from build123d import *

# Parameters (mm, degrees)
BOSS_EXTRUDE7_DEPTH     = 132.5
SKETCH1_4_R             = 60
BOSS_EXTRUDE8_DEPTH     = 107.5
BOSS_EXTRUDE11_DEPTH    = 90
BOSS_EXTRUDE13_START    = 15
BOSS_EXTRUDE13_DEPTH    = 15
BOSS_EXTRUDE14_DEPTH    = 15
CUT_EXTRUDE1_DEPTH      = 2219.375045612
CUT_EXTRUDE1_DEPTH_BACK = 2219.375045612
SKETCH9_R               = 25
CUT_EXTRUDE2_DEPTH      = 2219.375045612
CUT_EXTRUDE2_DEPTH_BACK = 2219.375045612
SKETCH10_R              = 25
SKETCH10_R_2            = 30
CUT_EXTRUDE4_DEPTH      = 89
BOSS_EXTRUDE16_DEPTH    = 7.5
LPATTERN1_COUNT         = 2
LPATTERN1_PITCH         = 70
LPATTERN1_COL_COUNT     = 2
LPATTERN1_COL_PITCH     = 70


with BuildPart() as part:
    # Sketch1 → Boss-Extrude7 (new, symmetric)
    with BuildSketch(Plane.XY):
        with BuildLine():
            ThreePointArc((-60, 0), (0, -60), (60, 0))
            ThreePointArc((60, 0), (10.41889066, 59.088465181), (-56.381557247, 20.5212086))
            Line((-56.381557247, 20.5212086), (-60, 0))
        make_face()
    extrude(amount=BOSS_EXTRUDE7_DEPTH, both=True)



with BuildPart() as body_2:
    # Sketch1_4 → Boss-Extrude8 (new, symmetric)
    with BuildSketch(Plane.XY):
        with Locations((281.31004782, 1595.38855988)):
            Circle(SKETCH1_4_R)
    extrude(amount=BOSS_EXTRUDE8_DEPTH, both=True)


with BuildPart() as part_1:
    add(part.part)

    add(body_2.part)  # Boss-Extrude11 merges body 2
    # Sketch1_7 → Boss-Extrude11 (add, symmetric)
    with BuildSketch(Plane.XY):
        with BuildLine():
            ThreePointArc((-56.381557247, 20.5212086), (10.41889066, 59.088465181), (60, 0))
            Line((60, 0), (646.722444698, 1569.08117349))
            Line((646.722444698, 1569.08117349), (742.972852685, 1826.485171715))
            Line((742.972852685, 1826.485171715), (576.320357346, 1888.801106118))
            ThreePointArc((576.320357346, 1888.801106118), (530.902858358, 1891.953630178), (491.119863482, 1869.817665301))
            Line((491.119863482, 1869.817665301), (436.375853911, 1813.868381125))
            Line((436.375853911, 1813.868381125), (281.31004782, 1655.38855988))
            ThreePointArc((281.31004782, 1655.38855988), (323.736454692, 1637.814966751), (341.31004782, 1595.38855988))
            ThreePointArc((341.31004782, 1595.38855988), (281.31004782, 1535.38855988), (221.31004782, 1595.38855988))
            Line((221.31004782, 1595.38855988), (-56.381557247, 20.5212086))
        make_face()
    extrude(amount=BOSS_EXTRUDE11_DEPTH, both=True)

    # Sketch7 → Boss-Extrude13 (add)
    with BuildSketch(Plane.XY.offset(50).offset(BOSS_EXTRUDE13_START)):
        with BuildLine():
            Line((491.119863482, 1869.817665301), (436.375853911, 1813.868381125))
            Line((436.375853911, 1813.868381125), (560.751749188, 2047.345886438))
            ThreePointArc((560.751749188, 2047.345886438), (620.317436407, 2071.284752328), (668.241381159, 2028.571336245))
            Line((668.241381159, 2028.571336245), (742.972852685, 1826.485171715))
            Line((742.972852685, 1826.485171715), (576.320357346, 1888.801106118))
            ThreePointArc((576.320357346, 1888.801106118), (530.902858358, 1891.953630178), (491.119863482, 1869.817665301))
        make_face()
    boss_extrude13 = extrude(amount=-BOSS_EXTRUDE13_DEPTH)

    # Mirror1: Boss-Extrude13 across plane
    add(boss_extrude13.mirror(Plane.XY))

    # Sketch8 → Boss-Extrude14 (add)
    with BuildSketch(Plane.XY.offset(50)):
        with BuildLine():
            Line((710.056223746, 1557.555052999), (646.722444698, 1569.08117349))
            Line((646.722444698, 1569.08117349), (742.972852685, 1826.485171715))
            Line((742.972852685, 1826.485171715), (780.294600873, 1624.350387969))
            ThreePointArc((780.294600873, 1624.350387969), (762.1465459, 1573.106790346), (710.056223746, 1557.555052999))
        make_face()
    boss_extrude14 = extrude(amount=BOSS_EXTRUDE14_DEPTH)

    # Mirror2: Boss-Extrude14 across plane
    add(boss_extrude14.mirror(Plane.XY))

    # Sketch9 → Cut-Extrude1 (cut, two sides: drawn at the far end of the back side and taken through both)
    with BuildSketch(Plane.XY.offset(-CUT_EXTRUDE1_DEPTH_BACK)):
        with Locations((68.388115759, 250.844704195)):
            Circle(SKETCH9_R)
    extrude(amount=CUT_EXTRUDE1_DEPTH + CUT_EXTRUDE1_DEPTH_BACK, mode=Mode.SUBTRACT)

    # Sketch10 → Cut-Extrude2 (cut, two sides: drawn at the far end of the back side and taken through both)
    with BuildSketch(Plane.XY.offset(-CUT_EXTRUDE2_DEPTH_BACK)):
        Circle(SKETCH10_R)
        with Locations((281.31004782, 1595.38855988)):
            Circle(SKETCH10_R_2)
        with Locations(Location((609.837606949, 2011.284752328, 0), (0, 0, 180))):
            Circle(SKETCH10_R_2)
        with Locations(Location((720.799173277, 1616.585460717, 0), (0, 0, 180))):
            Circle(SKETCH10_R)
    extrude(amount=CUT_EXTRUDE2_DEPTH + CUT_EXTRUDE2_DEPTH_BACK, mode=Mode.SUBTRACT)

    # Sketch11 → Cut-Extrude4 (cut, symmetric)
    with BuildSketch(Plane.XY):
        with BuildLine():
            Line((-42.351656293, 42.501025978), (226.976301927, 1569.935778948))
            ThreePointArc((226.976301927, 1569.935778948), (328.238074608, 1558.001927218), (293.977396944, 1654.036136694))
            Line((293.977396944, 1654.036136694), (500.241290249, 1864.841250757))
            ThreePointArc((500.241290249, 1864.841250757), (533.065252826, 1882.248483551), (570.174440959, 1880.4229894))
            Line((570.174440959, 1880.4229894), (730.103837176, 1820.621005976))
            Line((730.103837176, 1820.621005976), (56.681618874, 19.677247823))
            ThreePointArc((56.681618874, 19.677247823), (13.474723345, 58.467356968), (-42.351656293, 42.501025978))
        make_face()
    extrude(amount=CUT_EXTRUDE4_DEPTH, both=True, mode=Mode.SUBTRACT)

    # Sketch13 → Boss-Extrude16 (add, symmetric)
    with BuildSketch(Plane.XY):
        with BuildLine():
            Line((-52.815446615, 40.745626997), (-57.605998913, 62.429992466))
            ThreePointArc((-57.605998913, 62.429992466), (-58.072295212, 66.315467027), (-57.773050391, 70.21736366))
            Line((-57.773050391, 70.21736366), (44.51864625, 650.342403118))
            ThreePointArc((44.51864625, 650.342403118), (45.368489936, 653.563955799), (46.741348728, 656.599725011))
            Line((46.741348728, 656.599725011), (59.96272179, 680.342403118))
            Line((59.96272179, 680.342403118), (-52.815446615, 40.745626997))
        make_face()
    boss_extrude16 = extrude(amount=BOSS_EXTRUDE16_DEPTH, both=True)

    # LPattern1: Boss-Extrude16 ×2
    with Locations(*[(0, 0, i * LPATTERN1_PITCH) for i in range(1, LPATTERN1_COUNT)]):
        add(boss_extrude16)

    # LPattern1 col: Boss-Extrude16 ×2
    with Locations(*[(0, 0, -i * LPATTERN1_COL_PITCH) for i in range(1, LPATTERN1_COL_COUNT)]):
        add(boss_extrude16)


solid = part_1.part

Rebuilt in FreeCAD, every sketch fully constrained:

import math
import FreeCAD as App
import Part
import Sketcher
from FreeCAD import Vector
Q = App.Units.Quantity

doc = App.newDocument("Part")
body = doc.addObject("PartDesign::Body", "Body")

# Sketch on XY plane
sketch1 = body.newObject("Sketcher::SketchObject", "Sketch")
sketch1.AttachmentSupport = (doc.getObject("XY_Plane"), [""])
sketch1.MapMode = "FlatFace"
sketch1.addGeometry(Part.ArcOfCircle(Part.Circle(Vector(0, 0, 0), Vector(0, 0, 1), 60), math.radians(180), math.radians(360)), False)
sketch1.addGeometry(Part.ArcOfCircle(Part.Circle(Vector(0, 0, 0), Vector(0, 0, 1), 60), math.radians(0), math.radians(160)), False)
sketch1.addGeometry(Part.LineSegment(Vector(-56, 21, 0), Vector(-60, 0, 0)), False)
sketch1.addConstraint(Sketcher.Constraint("Tangent", 0, 2, 1, 1))
sketch1.addConstraint(Sketcher.Constraint("Coincident", 1, 2, 2, 1))
sketch1.addConstraint(Sketcher.Constraint("Coincident", 2, 2, 0, 1))
sketch1.addConstraint(Sketcher.Constraint("Coincident", 0, 3, -1, 1))
sketch1.addConstraint(Sketcher.Constraint("Equal", 0, 1))
sketch1.addConstraint(Sketcher.Constraint("PointOnObject", 0, 2, -1))
sketch1.addConstraint(Sketcher.Constraint("PointOnObject", 2, 2, -1))
sketch1.addConstraint(Sketcher.Constraint("Radius", 0, Q("60 mm")))
sketch1.addConstraint(Sketcher.Constraint("Angle", 2, Q("-100 deg")))
pad1 = body.newObject("PartDesign::Pad", "Pad")
pad1.Profile = sketch1
pad1.Length = 265
pad1.Midplane = True
body2 = doc.addObject("PartDesign::Body", "Body001")

# Sketch on XY plane
sketch2 = body2.newObject("Sketcher::SketchObject", "Sketch001")
sketch2.AttachmentSupport = (doc.getObject("XY_Plane001"), [""])
sketch2.MapMode = "FlatFace"
sketch2.addGeometry(Part.Circle(Vector(281, 1595, 0), Vector(0, 0, 1), 60), False)
sketch2.addConstraint(Sketcher.Constraint("Diameter", 0, Q("120 mm")))
sketch2.addConstraint(Sketcher.Constraint("DistanceY", -1, 1, 0, 3, Q("1595.38856 mm")))
sketch2.addConstraint(Sketcher.Constraint("DistanceX", -1, 1, 0, 3, Q("281.310048 mm")))
pad2 = body2.newObject("PartDesign::Pad", "Pad001")
pad2.Profile = sketch2
pad2.Length = 215
pad2.Midplane = True
body.AllowCompound = True
doc.recompute()

boolean = body.newObject("PartDesign::Boolean", "Boolean")
boolean.Type = "Fuse"
boolean.addObjects([body2])

# Sketch on XY plane
sketch3 = body.newObject("Sketcher::SketchObject", "Sketch002")
sketch3.AttachmentSupport = (doc.getObject("XY_Plane"), [""])
sketch3.MapMode = "FlatFace"
sketch3.addGeometry(Part.ArcOfCircle(Part.Circle(Vector(0, 0, 0), Vector(0, 0, 1), 60), math.radians(0), math.radians(160)), False)
sketch3.addGeometry(Part.LineSegment(Vector(60, 0, 0), Vector(647, 1569, 0)), False)
sketch3.addGeometry(Part.LineSegment(Vector(647, 1569, 0), Vector(743, 1826, 0)), False)
sketch3.addGeometry(Part.LineSegment(Vector(743, 1826, 0), Vector(576, 1889, 0)), False)
sketch3.addGeometry(Part.ArcOfCircle(Part.Circle(Vector(548, 1814, 0), Vector(0, 0, 1), 80), math.radians(69), math.radians(136)), False)
sketch3.addGeometry(Part.LineSegment(Vector(491, 1870, 0), Vector(436, 1814, 0)), False)
sketch3.addGeometry(Part.LineSegment(Vector(436, 1814, 0), Vector(281, 1655, 0)), False)
sketch3.addGeometry(Part.ArcOfCircle(Part.Circle(Vector(281, 1595, 0), Vector(0, 0, 1), 60), math.radians(0), math.radians(90)), False)
sketch3.addGeometry(Part.ArcOfCircle(Part.Circle(Vector(281, 1595, 0), Vector(0, 0, 1), 60), math.radians(180), math.radians(360)), False)
sketch3.addGeometry(Part.LineSegment(Vector(221, 1595, 0), Vector(-56, 21, 0)), False)
sketch3.addConstraint(Sketcher.Constraint("Coincident", 0, 1, 1, 1))
sketch3.addConstraint(Sketcher.Constraint("Coincident", 1, 2, 2, 1))
sketch3.addConstraint(Sketcher.Constraint("Coincident", 2, 2, 3, 1))
sketch3.addConstraint(Sketcher.Constraint("Tangent", 3, 2, 4, 1))
sketch3.addConstraint(Sketcher.Constraint("Tangent", 4, 2, 5, 1))
sketch3.addConstraint(Sketcher.Constraint("Coincident", 5, 2, 6, 1))
sketch3.addConstraint(Sketcher.Constraint("Coincident", 6, 2, 7, 2))
sketch3.addConstraint(Sketcher.Constraint("Tangent", 7, 1, 8, 2))
sketch3.addConstraint(Sketcher.Constraint("Coincident", 8, 1, 9, 1))
sketch3.addConstraint(Sketcher.Constraint("Coincident", 9, 2, 0, 2))
sketch3.addConstraint(Sketcher.Constraint("Coincident", 0, 3, -1, 1))
sketch3.addConstraint(Sketcher.Constraint("Equal", 0, 7))
sketch3.addConstraint(Sketcher.Constraint("Equal", 7, 8))
sketch3.addConstraint(Sketcher.Constraint("PointOnObject", 0, 1, -1))
sketch3.addConstraint(Sketcher.Constraint("Parallel", 1, 2))
sketch3.addConstraint(Sketcher.Constraint("Perpendicular", 2, 3))
sketch3.addConstraint(Sketcher.Constraint("Parallel", 5, 6))
sketch3.addConstraint(Sketcher.Constraint("Horizontal", 4, 3, 5, 2))
sketch3.addConstraint(Sketcher.Constraint("Horizontal", 8, 3, 7, 1))
sketch3.addConstraint(Sketcher.Constraint("Horizontal", 7, 1, 8, 1))
sketch3.addConstraint(Sketcher.Constraint("Vertical", 8, 3, 6, 2))
sketch3.addConstraint(Sketcher.Constraint("Radius", 0, Q("60 mm")))
sketch3.addConstraint(Sketcher.Constraint("Radius", 4, Q("80 mm")))
sketch3.addConstraint(Sketcher.Constraint("Angle", 9, Q("-100 deg")))
sketch3.addConstraint(Sketcher.Constraint("DistanceY", 1, 2, 2, 2, Q("257.403998 mm")))
sketch3.addConstraint(Sketcher.Constraint("DistanceX", 4, 3, 3, 2, Q("28.019399 mm")))
sketch3.addConstraint(Sketcher.Constraint("Distance", 1, Q("1675.18923 mm")))
sketch3.addConstraint(Sketcher.Constraint("Distance", 5, Q("78.276618 mm")))
sketch3.addConstraint(Sketcher.Constraint("Distance", 6, Q("221.723382 mm")))
sketch3.addConstraint(Sketcher.Constraint("Distance", 9, Q("1599.162219 mm")))
pad3 = body.newObject("PartDesign::Pad", "Pad002")
pad3.Profile = sketch3
pad3.Length = 180
pad3.Midplane = True

# Sketch on XY plane
sketch4 = body.newObject("Sketcher::SketchObject", "Sketch003")
sketch4.AttachmentSupport = (doc.getObject("XY_Plane"), [""])
sketch4.MapMode = "FlatFace"
sketch4.AttachmentOffset = App.Placement(Vector(0, 0, 65), App.Rotation())
sketch4.addGeometry(Part.LineSegment(Vector(436, 1814, 0), Vector(491, 1870, 0)), False)
sketch4.addGeometry(Part.ArcOfCircle(Part.Circle(Vector(548, 1814, 0), Vector(0, 0, 1), 80), math.radians(69), math.radians(136)), False)
sketch4.addGeometry(Part.LineSegment(Vector(576, 1889, 0), Vector(743, 1826, 0)), False)
sketch4.addGeometry(Part.LineSegment(Vector(743, 1826, 0), Vector(668, 2029, 0)), False)
sketch4.addGeometry(Part.ArcOfCircle(Part.Circle(Vector(610, 2011, 0), Vector(0, 0, 1), 61), math.radians(16), math.radians(144)), False)
sketch4.addGeometry(Part.LineSegment(Vector(561, 2047, 0), Vector(436, 1814, 0)), False)
sketch4.addConstraint(Sketcher.Constraint("Tangent", 0, 2, 1, 2))
sketch4.addConstraint(Sketcher.Constraint("Tangent", 1, 1, 2, 1))
sketch4.addConstraint(Sketcher.Constraint("Coincident", 2, 2, 3, 1))
sketch4.addConstraint(Sketcher.Constraint("Coincident", 3, 2, 4, 1))
sketch4.addConstraint(Sketcher.Constraint("Coincident", 4, 2, 5, 1))
sketch4.addConstraint(Sketcher.Constraint("Coincident", 5, 2, 0, 1))
sketch4.addConstraint(Sketcher.Constraint("Horizontal", 1, 3, 5, 2))
sketch4.addConstraint(Sketcher.Constraint("Radius", 1, Q("80 mm")))
sketch4.addConstraint(Sketcher.Constraint("Radius", 4, Q("60.908348 mm")))
sketch4.addConstraint(Sketcher.Constraint("DistanceX", 1, 3, 1, 1, Q("28.019399 mm")))
sketch4.addConstraint(Sketcher.Constraint("Distance", 0, Q("78.276618 mm")))
sketch4.addConstraint(Sketcher.Constraint("Distance", 3, Q("215.46139 mm")))
sketch4.addConstraint(Sketcher.Constraint("DistanceX", -1, 1, 1, 3, Q("548.300958 mm")))
sketch4.addConstraint(Sketcher.Constraint("DistanceY", -1, 1, 1, 3, Q("1813.868381 mm")))
sketch4.addConstraint(Sketcher.Constraint("DistanceY", -1, 1, 2, 2, Q("1826.485172 mm")))
sketch4.addConstraint(Sketcher.Constraint("DistanceX", -1, 1, 3, 2, Q("668.241381 mm")))
sketch4.addConstraint(Sketcher.Constraint("DistanceX", -1, 1, 4, 2, Q("560.751749 mm")))
sketch4.addConstraint(Sketcher.Constraint("DistanceX", 1, 3, 4, 3, Q("61.536649 mm")))
pad4 = body.newObject("PartDesign::Pad", "Pad003")
pad4.Profile = sketch4
pad4.Length = 15
pad4.Reversed = True
doc.recompute()

mirrored = body.newObject("PartDesign::Mirrored", "Mirrored")
mirrored.Originals = [pad4]
mirrored.MirrorPlane = (doc.getObject("XY_Plane"), [""])
body.Tip = mirrored

# Sketch on XY plane
sketch5 = body.newObject("Sketcher::SketchObject", "Sketch004")
sketch5.AttachmentSupport = (doc.getObject("XY_Plane"), [""])
sketch5.MapMode = "FlatFace"
sketch5.AttachmentOffset = App.Placement(Vector(0, 0, 50), App.Rotation())
sketch5.addGeometry(Part.LineSegment(Vector(647, 1569, 0), Vector(710, 1558, 0)), False)
sketch5.addGeometry(Part.ArcOfCircle(Part.Circle(Vector(721, 1617, 0), Vector(0, 0, 1), 60), math.radians(-100), math.radians(7)), False)
sketch5.addGeometry(Part.LineSegment(Vector(780, 1624, 0), Vector(743, 1826, 0)), False)
sketch5.addGeometry(Part.LineSegment(Vector(743, 1826, 0), Vector(647, 1569, 0)), False)
sketch5.addConstraint(Sketcher.Constraint("Tangent", 0, 2, 1, 1))
sketch5.addConstraint(Sketcher.Constraint("Coincident", 1, 2, 2, 1))
sketch5.addConstraint(Sketcher.Constraint("Coincident", 2, 2, 3, 1))
sketch5.addConstraint(Sketcher.Constraint("Coincident", 3, 2, 0, 1))
sketch5.addConstraint(Sketcher.Constraint("Radius", 1, Q("60 mm")))
sketch5.addConstraint(Sketcher.Constraint("DistanceY", 3, 2, 2, 2, Q("257.403998 mm")))
sketch5.addConstraint(Sketcher.Constraint("DistanceX", -1, 1, 1, 2, Q("780.294601 mm")))
sketch5.addConstraint(Sketcher.Constraint("Distance", 3, Q("274.81077 mm")))
sketch5.addConstraint(Sketcher.Constraint("DistanceY", -1, 1, 1, 3, Q("1616.585461 mm")))
sketch5.addConstraint(Sketcher.Constraint("DistanceY", -1, 1, 2, 2, Q("1826.485172 mm")))
sketch5.addConstraint(Sketcher.Constraint("DistanceX", 0, 2, 1, 3, Q("10.74295 mm")))
sketch5.addConstraint(Sketcher.Constraint("DistanceX", 2, 2, 1, 2, Q("37.321748 mm")))
pad5 = body.newObject("PartDesign::Pad", "Pad004")
pad5.Profile = sketch5
pad5.Length = 15
doc.recompute()

mirrored2 = body.newObject("PartDesign::Mirrored", "Mirrored001")
mirrored2.Originals = [pad5]
mirrored2.MirrorPlane = (doc.getObject("XY_Plane"), [""])
body.Tip = mirrored2

# Sketch on XY plane
sketch6 = body.newObject("Sketcher::SketchObject", "Sketch005")
sketch6.AttachmentSupport = (doc.getObject("XY_Plane"), [""])
sketch6.MapMode = "FlatFace"
sketch6.addGeometry(Part.Circle(Vector(68, 251, 0), Vector(0, 0, 1), 25), False)
sketch6.addConstraint(Sketcher.Constraint("Diameter", 0, Q("50 mm")))
sketch6.addConstraint(Sketcher.Constraint("DistanceX", -1, 1, 0, 3, Q("68.388116 mm")))
sketch6.addConstraint(Sketcher.Constraint("DistanceY", -1, 1, 0, 3, Q("250.844704 mm")))
pocket1 = body.newObject("PartDesign::Pocket", "Pocket")
pocket1.Profile = sketch6
pocket1.Type = "ThroughAll"
pocket1.Midplane = True

# Sketch on XY plane
sketch7 = body.newObject("Sketcher::SketchObject", "Sketch006")
sketch7.AttachmentSupport = (doc.getObject("XY_Plane"), [""])
sketch7.MapMode = "FlatFace"
sketch7.addGeometry(Part.Circle(Vector(0, 0, 0), Vector(0, 0, 1), 25), False)
sketch7.addGeometry(Part.Circle(Vector(281, 1595, 0), Vector(0, 0, 1), 30), False)
sketch7.addGeometry(Part.Circle(Vector(610, 2011, 0), Vector(0, 0, 1), 30), False)
sketch7.addGeometry(Part.Circle(Vector(721, 1617, 0), Vector(0, 0, 1), 25), False)
sketch7.addConstraint(Sketcher.Constraint("Coincident", 0, 3, -1, 1))
sketch7.addConstraint(Sketcher.Constraint("Equal", 1, 2))
sketch7.addConstraint(Sketcher.Constraint("Equal", 0, 3))
sketch7.addConstraint(Sketcher.Constraint("Diameter", 0, Q("50 mm")))
sketch7.addConstraint(Sketcher.Constraint("Diameter", 1, Q("60 mm")))
sketch7.addConstraint(Sketcher.Constraint("DistanceY", 1, 3, 3, 3, Q("21.196901 mm")))
sketch7.addConstraint(Sketcher.Constraint("DistanceY", -1, 1, 1, 3, Q("1595.38856 mm")))
sketch7.addConstraint(Sketcher.Constraint("DistanceX", 1, 3, 2, 3, Q("328.527559 mm")))
sketch7.addConstraint(Sketcher.Constraint("DistanceY", 3, 3, 2, 3, Q("394.699292 mm")))
sketch7.addConstraint(Sketcher.Constraint("DistanceX", -1, 1, 1, 3, Q("281.310048 mm")))
sketch7.addConstraint(Sketcher.Constraint("DistanceX", -1, 1, 3, 3, Q("720.799173 mm")))
pocket2 = body.newObject("PartDesign::Pocket", "Pocket001")
pocket2.Profile = sketch7
pocket2.Type = "ThroughAll"
pocket2.Midplane = True

# Sketch on XY plane
sketch8 = body.newObject("Sketcher::SketchObject", "Sketch007")
sketch8.AttachmentSupport = (doc.getObject("XY_Plane"), [""])
sketch8.MapMode = "FlatFace"
sketch8.addGeometry(Part.LineSegment(Vector(227, 1570, 0), Vector(-42, 43, 0)), False)
sketch8.addGeometry(Part.ArcOfCircle(Part.Circle(Vector(0, 0, 0), Vector(0, 0, 1), 60), math.radians(19), math.radians(135)), False)
sketch8.addGeometry(Part.LineSegment(Vector(57, 20, 0), Vector(730, 1821, 0)), False)
sketch8.addGeometry(Part.LineSegment(Vector(730, 1821, 0), Vector(570, 1880, 0)), False)
sketch8.addGeometry(Part.ArcOfCircle(Part.Circle(Vector(548, 1814, 0), Vector(0, 0, 1), 70), math.radians(72), math.radians(133)), False)
sketch8.addGeometry(Part.LineSegment(Vector(500, 1865, 0), Vector(294, 1654, 0)), False)
sketch8.addGeometry(Part.ArcOfCircle(Part.Circle(Vector(281, 1595, 0), Vector(0, 0, 1), 60), math.radians(-155), math.radians(78)), False)
sketch8.addConstraint(Sketcher.Constraint("Coincident", 0, 2, 1, 2))
sketch8.addConstraint(Sketcher.Constraint("Coincident", 1, 1, 2, 1))
sketch8.addConstraint(Sketcher.Constraint("Coincident", 2, 2, 3, 1))
sketch8.addConstraint(Sketcher.Constraint("Coincident", 3, 2, 4, 1))
sketch8.addConstraint(Sketcher.Constraint("Coincident", 4, 2, 5, 1))
sketch8.addConstraint(Sketcher.Constraint("Coincident", 5, 2, 6, 2))
sketch8.addConstraint(Sketcher.Constraint("Coincident", 6, 1, 0, 1))
sketch8.addConstraint(Sketcher.Constraint("Coincident", 1, 3, -1, 1))
sketch8.addConstraint(Sketcher.Constraint("Equal", 1, 6))
sketch8.addConstraint(Sketcher.Constraint("Perpendicular", 2, 3))
sketch8.addConstraint(Sketcher.Constraint("Radius", 1, Q("60 mm")))
sketch8.addConstraint(Sketcher.Constraint("Angle", 0, Q("-100 deg")))
sketch8.addConstraint(Sketcher.Constraint("Radius", 4, Q("70.056871 mm")))
sketch8.addConstraint(Sketcher.Constraint("DistanceX", -1, 1, 6, 1, Q("226.976302 mm")))
sketch8.addConstraint(Sketcher.Constraint("DistanceX", -1, 1, 4, 3, Q("548.300958 mm")))
sketch8.addConstraint(Sketcher.Constraint("DistanceY", -1, 1, 4, 3, Q("1813.868381 mm")))
sketch8.addConstraint(Sketcher.Constraint("DistanceY", -1, 1, 6, 3, Q("1595.38856 mm")))
sketch8.addConstraint(Sketcher.Constraint("DistanceX", -1, 1, 1, 1, Q("56.681619 mm")))
sketch8.addConstraint(Sketcher.Constraint("DistanceX", -1, 1, 3, 2, Q("570.174441 mm")))
sketch8.addConstraint(Sketcher.Constraint("DistanceX", -1, 1, 4, 2, Q("500.24129 mm")))
sketch8.addConstraint(Sketcher.Constraint("DistanceY", -1, 1, 6, 1, Q("1569.935779 mm")))
sketch8.addConstraint(Sketcher.Constraint("DistanceX", 4, 3, 2, 2, Q("181.802879 mm")))
sketch8.addConstraint(Sketcher.Constraint("DistanceX", 6, 3, 5, 2, Q("12.667349 mm")))
pocket3 = body.newObject("PartDesign::Pocket", "Pocket002")
pocket3.Profile = sketch8
pocket3.Length = 178
pocket3.Midplane = True

# Sketch on XY plane
sketch9 = body.newObject("Sketcher::SketchObject", "Sketch008")
sketch9.AttachmentSupport = (doc.getObject("XY_Plane"), [""])
sketch9.MapMode = "FlatFace"
sketch9.addGeometry(Part.LineSegment(Vector(-58, 62, 0), Vector(-53, 41, 0)), False)
sketch9.addGeometry(Part.LineSegment(Vector(-53, 41, 0), Vector(60, 680, 0)), False)
sketch9.addGeometry(Part.LineSegment(Vector(60, 680, 0), Vector(47, 657, 0)), False)
sketch9.addGeometry(Part.ArcOfCircle(Part.Circle(Vector(64, 647, 0), Vector(0, 0, 1), 20), math.radians(150.89), math.radians(170)), False)
sketch9.addGeometry(Part.LineSegment(Vector(45, 650, 0), Vector(-58, 70, 0)), False)
sketch9.addGeometry(Part.ArcOfCircle(Part.Circle(Vector(-38, 67, 0), Vector(0, 0, 1), 20), math.radians(170), math.radians(192)), False)
sketch9.addConstraint(Sketcher.Constraint("Coincident", 0, 2, 1, 1))
sketch9.addConstraint(Sketcher.Constraint("Coincident", 1, 2, 2, 1))
sketch9.addConstraint(Sketcher.Constraint("Tangent", 2, 2, 3, 1))
sketch9.addConstraint(Sketcher.Constraint("Tangent", 3, 2, 4, 1))
sketch9.addConstraint(Sketcher.Constraint("Tangent", 4, 2, 5, 1))
sketch9.addConstraint(Sketcher.Constraint("Tangent", 5, 2, 0, 1))
sketch9.addConstraint(Sketcher.Constraint("Equal", 3, 5))
sketch9.addConstraint(Sketcher.Constraint("Parallel", 1, 4))
sketch9.addConstraint(Sketcher.Constraint("Radius", 3, Q("20 mm")))
sketch9.addConstraint(Sketcher.Constraint("Angle", 1, Q("80 deg")))
sketch9.addConstraint(Sketcher.Constraint("DistanceY", 3, 2, 1, 2, Q("30 mm")))
sketch9.addConstraint(Sketcher.Constraint("DistanceX", 5, 2, -1, 1, Q("57.605999 mm")))
sketch9.addConstraint(Sketcher.Constraint("DistanceX", -1, 1, 3, 3, Q("64.214801 mm")))
sketch9.addConstraint(Sketcher.Constraint("DistanceY", -1, 1, 5, 3, Q("66.7444 mm")))
sketch9.addConstraint(Sketcher.Constraint("DistanceY", 0, 2, 2, 2, Q("615.854098 mm")))
sketch9.addConstraint(Sketcher.Constraint("DistanceX", 4, 2, 2, 2, Q("104.514399 mm")))
pad6 = body.newObject("PartDesign::Pad", "Pad005")
pad6.Profile = sketch9
pad6.Length = 15
pad6.Midplane = True
doc.recompute()

linearpattern = body.newObject("PartDesign::LinearPattern", "LinearPattern")
linearpattern.Originals = [pad6]
linearpattern.Direction = (doc.getObject("Z_Axis"), [""])
linearpattern.Mode = "offset"
linearpattern.Offset = 70
linearpattern.Occurrences = 2
body.Tip = linearpattern
doc.recompute()

linearpattern2 = body.newObject("PartDesign::LinearPattern", "LinearPattern001")
linearpattern2.Originals = [pad6]
linearpattern2.Direction = (doc.getObject("Z_Axis"), [""])
linearpattern2.Mode = "offset"
linearpattern2.Offset = 70
linearpattern2.Occurrences = 2
linearpattern2.Reversed = True
body.Tip = linearpattern2

doc.recompute()
